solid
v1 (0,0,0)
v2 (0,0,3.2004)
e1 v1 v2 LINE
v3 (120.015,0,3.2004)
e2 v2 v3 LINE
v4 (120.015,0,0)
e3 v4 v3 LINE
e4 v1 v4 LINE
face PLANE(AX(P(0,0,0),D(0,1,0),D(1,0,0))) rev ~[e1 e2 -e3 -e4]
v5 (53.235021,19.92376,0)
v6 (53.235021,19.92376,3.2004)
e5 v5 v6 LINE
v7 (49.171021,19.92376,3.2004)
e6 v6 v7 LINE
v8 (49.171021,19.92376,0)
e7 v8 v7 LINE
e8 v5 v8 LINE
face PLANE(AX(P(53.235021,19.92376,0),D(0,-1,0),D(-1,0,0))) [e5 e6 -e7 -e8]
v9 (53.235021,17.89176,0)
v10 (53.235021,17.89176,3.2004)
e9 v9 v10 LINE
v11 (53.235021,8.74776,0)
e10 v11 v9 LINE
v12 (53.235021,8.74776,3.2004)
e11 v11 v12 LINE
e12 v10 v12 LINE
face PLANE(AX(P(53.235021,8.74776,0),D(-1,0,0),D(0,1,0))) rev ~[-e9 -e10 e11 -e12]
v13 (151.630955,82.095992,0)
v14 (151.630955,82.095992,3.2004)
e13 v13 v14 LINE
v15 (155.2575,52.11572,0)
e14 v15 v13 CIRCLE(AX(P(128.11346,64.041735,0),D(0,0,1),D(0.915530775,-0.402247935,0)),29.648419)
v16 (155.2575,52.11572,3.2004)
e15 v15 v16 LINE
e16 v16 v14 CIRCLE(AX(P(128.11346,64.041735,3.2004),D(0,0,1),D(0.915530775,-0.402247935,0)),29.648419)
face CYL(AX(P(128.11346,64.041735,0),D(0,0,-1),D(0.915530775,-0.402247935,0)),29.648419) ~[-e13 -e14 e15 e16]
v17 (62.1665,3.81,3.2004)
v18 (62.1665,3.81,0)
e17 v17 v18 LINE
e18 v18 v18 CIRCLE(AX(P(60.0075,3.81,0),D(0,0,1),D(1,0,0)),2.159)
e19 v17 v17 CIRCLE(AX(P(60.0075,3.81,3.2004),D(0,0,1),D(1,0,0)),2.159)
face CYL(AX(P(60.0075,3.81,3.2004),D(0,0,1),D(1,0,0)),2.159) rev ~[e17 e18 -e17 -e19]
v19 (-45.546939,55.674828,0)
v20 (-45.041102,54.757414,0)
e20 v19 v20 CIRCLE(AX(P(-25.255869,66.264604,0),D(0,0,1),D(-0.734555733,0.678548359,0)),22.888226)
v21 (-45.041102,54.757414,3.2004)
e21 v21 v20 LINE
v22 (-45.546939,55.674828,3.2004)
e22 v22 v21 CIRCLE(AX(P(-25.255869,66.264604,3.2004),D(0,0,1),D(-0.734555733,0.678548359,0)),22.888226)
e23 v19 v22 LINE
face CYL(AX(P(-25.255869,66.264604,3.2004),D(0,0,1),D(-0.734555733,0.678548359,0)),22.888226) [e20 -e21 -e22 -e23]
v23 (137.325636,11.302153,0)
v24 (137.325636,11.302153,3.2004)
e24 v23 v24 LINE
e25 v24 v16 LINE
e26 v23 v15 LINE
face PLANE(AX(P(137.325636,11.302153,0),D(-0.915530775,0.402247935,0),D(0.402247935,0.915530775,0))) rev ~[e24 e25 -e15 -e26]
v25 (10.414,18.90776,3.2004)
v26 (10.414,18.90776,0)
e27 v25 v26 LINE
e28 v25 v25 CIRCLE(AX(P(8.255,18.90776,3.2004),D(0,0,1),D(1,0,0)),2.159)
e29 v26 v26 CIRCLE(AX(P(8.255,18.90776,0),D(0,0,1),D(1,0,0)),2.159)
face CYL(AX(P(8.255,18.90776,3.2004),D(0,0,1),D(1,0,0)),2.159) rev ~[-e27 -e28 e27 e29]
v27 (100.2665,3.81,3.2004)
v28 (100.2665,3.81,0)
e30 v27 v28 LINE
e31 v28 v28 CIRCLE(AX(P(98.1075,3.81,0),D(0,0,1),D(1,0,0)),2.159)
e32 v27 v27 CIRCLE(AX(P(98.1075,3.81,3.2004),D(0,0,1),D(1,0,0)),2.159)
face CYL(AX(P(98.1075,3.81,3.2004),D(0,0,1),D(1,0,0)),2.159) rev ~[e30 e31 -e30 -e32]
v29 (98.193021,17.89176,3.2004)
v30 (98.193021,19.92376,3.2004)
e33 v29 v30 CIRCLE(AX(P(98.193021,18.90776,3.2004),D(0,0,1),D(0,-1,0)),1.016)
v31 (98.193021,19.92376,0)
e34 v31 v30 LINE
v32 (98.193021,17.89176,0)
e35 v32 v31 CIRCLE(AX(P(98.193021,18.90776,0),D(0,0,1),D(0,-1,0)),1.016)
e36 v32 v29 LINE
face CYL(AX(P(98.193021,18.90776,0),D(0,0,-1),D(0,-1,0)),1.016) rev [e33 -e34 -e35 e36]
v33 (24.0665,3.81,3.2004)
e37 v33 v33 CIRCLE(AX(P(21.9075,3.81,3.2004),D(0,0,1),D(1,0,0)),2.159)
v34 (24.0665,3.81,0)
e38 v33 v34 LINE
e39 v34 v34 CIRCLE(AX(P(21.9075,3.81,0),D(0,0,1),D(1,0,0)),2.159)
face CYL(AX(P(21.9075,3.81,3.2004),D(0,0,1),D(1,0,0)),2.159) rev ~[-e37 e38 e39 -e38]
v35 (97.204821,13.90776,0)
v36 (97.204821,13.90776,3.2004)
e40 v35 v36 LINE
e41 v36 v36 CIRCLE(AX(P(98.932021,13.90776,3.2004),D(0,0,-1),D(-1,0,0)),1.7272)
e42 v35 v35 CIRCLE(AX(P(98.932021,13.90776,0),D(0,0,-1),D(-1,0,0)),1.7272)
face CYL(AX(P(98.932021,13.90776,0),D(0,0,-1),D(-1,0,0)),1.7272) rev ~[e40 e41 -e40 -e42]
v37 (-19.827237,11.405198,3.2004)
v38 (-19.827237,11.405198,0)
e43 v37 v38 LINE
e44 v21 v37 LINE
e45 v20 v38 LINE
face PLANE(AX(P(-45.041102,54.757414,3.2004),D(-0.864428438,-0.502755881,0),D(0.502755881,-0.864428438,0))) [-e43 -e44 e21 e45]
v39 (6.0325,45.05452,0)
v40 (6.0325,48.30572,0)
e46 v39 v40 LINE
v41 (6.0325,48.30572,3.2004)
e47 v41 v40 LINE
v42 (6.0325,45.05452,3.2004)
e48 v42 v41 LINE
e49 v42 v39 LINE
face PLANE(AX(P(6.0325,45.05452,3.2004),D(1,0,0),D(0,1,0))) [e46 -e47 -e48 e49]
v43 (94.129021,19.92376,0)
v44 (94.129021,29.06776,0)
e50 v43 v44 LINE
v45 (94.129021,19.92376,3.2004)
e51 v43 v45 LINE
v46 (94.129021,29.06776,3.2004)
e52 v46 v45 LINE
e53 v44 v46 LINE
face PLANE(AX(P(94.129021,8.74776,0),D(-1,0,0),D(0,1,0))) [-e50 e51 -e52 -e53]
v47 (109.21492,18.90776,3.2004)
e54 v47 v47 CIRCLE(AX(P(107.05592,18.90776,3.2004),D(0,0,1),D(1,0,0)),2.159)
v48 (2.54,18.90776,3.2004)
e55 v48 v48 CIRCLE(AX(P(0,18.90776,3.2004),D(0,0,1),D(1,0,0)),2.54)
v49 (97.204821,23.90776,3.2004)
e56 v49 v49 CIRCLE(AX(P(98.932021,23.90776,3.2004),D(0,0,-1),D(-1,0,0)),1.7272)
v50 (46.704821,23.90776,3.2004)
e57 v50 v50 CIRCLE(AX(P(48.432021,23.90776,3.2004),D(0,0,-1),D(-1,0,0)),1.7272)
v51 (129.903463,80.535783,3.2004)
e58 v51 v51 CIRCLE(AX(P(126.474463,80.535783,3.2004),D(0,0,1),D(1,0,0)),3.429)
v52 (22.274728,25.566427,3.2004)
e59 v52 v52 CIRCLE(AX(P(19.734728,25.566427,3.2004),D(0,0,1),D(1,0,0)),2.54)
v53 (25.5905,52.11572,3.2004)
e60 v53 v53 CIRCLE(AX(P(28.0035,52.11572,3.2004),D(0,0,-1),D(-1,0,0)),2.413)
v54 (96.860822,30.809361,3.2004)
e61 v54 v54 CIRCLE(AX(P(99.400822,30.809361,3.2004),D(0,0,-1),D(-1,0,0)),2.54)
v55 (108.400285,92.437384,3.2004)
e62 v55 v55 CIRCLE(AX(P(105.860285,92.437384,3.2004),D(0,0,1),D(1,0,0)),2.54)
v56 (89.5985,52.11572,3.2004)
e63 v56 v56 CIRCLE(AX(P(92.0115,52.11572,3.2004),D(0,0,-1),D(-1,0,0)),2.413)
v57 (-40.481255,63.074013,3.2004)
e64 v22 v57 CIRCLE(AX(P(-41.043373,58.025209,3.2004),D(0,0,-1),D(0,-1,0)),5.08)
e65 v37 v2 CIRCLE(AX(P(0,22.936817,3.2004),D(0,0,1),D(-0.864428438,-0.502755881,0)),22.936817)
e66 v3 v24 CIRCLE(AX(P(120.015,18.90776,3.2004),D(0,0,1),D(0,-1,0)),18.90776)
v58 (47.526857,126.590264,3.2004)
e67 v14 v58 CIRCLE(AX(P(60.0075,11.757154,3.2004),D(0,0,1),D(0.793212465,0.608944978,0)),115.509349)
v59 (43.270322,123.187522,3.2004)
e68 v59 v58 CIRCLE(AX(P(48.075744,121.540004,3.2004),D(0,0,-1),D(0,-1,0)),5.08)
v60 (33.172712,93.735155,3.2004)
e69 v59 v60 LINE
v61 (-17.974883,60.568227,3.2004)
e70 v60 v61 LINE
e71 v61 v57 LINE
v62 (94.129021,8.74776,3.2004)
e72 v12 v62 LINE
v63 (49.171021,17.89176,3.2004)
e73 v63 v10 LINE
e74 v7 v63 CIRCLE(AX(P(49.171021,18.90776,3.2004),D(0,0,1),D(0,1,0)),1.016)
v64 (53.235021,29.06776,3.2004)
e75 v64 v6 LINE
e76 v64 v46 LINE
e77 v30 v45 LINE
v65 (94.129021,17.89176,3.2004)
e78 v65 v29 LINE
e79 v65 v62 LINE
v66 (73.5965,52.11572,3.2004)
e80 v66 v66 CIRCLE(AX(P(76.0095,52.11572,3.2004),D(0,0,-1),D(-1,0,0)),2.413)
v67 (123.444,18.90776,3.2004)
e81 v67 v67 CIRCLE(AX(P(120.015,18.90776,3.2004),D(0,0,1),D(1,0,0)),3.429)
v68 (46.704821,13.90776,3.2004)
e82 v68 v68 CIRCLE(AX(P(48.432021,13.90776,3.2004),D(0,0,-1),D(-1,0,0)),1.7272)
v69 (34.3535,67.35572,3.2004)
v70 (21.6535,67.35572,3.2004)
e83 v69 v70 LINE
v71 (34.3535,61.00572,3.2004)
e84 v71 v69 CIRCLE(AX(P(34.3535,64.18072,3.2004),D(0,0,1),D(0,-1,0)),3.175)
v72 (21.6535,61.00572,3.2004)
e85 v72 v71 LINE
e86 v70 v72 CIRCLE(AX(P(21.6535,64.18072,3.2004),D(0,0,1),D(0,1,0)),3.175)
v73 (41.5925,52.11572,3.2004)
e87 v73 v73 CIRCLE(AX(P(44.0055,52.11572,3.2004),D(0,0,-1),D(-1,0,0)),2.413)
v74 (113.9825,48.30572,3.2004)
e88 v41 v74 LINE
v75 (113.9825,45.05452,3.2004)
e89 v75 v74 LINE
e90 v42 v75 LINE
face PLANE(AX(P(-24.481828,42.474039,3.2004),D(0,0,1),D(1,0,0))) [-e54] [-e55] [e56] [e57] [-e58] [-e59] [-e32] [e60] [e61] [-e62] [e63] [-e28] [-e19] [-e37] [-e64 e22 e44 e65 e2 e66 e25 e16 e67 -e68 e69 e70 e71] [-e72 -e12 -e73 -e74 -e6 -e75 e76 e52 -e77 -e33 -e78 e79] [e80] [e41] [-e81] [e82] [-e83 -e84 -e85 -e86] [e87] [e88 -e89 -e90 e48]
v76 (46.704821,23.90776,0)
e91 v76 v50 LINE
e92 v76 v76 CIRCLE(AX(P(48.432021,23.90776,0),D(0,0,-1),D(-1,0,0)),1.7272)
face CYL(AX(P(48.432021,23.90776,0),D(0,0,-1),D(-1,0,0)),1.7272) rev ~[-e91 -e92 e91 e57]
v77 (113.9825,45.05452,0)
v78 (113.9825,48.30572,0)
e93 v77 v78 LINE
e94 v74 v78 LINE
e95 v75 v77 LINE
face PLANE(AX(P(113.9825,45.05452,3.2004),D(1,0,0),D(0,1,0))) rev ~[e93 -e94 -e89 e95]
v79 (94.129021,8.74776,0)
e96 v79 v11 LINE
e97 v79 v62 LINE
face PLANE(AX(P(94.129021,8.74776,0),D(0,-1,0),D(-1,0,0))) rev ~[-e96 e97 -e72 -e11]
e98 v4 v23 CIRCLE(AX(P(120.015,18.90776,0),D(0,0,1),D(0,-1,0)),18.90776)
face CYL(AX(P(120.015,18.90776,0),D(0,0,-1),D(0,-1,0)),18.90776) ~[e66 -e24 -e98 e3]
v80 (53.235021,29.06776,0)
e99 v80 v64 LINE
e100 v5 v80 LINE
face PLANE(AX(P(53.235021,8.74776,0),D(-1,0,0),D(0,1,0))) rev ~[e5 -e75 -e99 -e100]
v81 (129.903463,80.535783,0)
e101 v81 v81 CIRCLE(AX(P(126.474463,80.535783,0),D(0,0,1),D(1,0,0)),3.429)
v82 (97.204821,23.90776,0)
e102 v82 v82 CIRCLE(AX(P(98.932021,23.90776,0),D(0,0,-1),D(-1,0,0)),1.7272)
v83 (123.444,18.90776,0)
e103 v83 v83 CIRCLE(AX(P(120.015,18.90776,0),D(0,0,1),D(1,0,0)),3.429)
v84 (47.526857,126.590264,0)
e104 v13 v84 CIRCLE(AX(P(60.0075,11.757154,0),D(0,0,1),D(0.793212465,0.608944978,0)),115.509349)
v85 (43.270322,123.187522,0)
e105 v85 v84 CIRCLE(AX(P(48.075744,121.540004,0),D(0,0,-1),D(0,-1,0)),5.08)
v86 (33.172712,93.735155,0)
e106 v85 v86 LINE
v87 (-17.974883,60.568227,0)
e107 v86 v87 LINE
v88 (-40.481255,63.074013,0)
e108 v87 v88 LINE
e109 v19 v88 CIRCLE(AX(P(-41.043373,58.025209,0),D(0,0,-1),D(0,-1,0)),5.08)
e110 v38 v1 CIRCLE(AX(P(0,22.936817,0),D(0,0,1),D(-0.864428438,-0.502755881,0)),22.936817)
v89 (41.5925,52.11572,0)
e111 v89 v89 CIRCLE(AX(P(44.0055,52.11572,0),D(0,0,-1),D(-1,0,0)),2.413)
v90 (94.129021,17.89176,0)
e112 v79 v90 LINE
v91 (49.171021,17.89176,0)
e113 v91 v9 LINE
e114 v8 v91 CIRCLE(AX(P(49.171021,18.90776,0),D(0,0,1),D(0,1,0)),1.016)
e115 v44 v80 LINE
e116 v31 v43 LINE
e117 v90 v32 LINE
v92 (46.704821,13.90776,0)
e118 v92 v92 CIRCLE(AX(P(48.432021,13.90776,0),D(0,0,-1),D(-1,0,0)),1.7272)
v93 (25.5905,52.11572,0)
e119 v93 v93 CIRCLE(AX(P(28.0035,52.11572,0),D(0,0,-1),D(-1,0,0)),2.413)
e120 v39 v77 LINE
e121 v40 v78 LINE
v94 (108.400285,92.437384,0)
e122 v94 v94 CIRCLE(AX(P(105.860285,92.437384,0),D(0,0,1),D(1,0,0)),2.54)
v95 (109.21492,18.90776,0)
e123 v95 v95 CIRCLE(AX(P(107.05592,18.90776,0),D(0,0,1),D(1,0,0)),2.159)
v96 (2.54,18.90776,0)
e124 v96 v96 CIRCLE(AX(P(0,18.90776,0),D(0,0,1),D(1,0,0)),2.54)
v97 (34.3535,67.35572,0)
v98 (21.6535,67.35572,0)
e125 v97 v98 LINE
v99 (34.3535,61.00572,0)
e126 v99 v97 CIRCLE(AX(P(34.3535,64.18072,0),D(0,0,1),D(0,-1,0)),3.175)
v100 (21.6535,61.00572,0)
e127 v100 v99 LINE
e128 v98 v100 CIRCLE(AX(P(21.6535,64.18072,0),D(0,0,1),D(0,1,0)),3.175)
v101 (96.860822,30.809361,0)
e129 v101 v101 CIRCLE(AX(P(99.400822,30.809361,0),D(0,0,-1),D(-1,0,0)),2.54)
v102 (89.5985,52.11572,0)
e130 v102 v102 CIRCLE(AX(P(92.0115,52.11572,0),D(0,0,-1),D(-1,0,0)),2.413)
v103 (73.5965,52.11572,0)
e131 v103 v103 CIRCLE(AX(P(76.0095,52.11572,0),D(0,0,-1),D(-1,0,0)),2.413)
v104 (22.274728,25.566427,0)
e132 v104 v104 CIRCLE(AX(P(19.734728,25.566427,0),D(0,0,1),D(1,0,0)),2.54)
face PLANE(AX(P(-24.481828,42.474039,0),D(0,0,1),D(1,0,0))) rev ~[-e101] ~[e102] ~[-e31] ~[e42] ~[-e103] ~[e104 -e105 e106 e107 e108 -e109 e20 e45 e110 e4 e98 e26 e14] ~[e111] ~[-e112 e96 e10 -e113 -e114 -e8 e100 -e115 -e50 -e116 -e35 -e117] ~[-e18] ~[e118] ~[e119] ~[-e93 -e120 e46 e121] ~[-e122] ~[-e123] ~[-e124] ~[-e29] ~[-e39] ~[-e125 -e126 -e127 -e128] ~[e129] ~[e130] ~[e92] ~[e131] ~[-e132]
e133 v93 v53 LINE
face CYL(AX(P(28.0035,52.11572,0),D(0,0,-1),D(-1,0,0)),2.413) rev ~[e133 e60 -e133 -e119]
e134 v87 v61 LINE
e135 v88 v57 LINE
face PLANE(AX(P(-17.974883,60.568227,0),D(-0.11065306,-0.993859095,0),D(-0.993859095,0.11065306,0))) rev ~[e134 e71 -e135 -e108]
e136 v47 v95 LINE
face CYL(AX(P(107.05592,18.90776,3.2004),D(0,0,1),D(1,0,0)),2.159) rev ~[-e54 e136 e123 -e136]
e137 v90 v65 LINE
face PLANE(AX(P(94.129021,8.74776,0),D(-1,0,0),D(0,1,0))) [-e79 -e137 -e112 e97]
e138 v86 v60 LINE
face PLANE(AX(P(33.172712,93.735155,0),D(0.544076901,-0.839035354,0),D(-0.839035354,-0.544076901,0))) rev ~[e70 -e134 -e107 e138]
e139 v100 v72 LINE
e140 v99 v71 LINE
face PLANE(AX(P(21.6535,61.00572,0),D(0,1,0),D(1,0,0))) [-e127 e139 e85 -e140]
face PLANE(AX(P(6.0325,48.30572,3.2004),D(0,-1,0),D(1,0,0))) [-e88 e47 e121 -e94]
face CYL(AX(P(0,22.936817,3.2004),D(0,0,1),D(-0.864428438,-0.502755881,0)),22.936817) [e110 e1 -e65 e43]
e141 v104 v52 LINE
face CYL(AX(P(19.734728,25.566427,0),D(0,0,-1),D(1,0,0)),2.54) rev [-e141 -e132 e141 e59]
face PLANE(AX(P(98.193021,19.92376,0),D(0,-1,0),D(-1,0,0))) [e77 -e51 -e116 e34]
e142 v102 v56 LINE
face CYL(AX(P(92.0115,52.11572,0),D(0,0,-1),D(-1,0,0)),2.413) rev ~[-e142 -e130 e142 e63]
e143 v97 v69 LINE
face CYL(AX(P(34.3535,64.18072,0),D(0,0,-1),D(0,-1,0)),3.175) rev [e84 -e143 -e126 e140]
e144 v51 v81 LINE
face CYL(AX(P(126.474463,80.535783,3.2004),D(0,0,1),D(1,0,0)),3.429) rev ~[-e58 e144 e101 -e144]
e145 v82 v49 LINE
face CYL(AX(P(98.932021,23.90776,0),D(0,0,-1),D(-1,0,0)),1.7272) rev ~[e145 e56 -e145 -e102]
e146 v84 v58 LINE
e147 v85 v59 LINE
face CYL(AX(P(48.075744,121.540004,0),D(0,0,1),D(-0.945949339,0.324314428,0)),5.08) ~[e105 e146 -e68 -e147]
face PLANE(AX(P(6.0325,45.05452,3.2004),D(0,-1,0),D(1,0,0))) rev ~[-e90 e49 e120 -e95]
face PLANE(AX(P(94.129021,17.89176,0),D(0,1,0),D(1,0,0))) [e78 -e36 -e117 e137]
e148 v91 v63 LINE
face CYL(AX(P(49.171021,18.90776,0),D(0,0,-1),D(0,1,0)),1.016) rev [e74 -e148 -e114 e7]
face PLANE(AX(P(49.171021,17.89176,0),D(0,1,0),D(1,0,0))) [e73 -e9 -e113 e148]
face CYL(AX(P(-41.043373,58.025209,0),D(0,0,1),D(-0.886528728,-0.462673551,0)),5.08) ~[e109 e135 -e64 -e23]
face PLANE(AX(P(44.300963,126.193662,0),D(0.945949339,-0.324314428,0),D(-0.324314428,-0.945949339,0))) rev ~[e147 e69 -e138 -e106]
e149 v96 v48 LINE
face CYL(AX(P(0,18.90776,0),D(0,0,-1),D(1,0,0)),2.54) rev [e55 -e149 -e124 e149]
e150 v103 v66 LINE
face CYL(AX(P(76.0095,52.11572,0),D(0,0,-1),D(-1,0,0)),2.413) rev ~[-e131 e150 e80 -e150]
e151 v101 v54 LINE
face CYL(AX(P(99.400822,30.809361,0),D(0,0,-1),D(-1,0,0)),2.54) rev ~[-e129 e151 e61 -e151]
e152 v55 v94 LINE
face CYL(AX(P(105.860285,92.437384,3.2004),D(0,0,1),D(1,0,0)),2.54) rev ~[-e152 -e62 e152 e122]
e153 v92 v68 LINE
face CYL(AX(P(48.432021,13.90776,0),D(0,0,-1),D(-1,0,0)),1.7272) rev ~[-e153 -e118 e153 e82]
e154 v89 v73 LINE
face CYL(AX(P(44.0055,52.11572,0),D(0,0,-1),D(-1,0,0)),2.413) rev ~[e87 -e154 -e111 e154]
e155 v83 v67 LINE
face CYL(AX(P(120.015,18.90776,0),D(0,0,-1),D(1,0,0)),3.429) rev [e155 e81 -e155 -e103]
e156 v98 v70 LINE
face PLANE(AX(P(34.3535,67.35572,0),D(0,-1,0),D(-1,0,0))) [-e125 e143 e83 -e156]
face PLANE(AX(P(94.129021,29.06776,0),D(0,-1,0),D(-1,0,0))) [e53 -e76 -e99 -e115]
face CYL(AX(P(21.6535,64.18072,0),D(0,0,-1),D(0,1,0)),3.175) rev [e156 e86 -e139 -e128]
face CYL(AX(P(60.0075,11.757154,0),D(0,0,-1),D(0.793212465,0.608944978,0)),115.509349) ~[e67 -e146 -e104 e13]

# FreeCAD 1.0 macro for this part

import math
import FreeCAD as App
import Part
import Sketcher
from FreeCAD import Vector
Q = App.Units.Quantity


def edges_at(feature, points):
    """Names of the edges that pass closest to the given points."""
    edges = feature.Shape.Edges
    near = lambda p: min(range(len(edges)), key=lambda i: edges[i].distToShape(Part.Vertex(*p))[0])
    return sorted({f"Edge{near(p) + 1}" for p in points})


def add_polygon(sketch, points):
    """Adds a closed chain of lines whose ends are joined by coincident constraints."""
    first, n = sketch.GeometryCount, len(points)
    for a, b in zip(points, points[1:] + points[:1]):
        sketch.addGeometry(Part.LineSegment(App.Vector(*a, 0), App.Vector(*b, 0)), False)
    for i in range(n):
        sketch.addConstraint(Sketcher.Constraint("Coincident", first + i, 2, first + (i + 1) % n, 1))

doc = App.newDocument("Part")
body = doc.addObject("PartDesign::Body", "Body")

# Sketch on XY plane
sketch1 = doc.addObject("Sketcher::SketchObject", "Sketch")
body.addObject(sketch1)
sketch1.AttachmentSupport = (doc.XY_Plane, [""])
sketch1.MapMode = "FlatFace"
sketch1.addGeometry(Part.LineSegment(Vector(0, 0, 0), Vector(120, 0, 0)), False)
sketch1.addGeometry(Part.ArcOfCircle(Part.Circle(Vector(120, 18.9, 0), Vector(0, 0, 1), 18.9), math.radians(-90), math.radians(-24)), False)
sketch1.addGeometry(Part.LineSegment(Vector(137.3, 11.3, 0), Vector(155.3, 52.1, 0)), False)
sketch1.addGeometry(Part.ArcOfCircle(Part.Circle(Vector(128.1, 64, 0), Vector(0, 0, 1), 29.6), math.radians(-24), math.radians(38)), False)
sketch1.addGeometry(Part.ArcOfCircle(Part.Circle(Vector(60, 11.8, 0), Vector(0, 0, 1), 115.5), math.radians(38), math.radians(142)), False)
sketch1.addGeometry(Part.ArcOfCircle(Part.Circle(Vector(-8.1, 64, 0), Vector(0, 0, 1), 29.6), math.radians(142), math.radians(204)), False)
sketch1.addGeometry(Part.LineSegment(Vector(-35.2, 52.1, 0), Vector(-17.3, 11.3, 0)), False)
sketch1.addGeometry(Part.ArcOfCircle(Part.Circle(Vector(0, 18.9, 0), Vector(0, 0, 1), 18.9), math.radians(-156), math.radians(-90)), False)
sketch1.addGeometry(Part.Circle(Vector(0, 18.9, 0), Vector(0, 0, 1), 2.5), False)
sketch1.addGeometry(Part.Circle(Vector(120, 18.9, 0), Vector(0, 0, 1), 3.4), False)
sketch1.addGeometry(Part.Circle(Vector(19.7, 25.6, 0), Vector(0, 0, 1), 2.5), False)
sketch1.addConstraint(Sketcher.Constraint("Tangent", 0, 2, 1, 1))
sketch1.addConstraint(Sketcher.Constraint("Tangent", 1, 2, 2, 1))
sketch1.addConstraint(Sketcher.Constraint("Tangent", 2, 2, 3, 1))
sketch1.addConstraint(Sketcher.Constraint("Tangent", 3, 2, 4, 1))
sketch1.addConstraint(Sketcher.Constraint("Tangent", 4, 2, 5, 1))
sketch1.addConstraint(Sketcher.Constraint("Tangent", 5, 2, 6, 1))
sketch1.addConstraint(Sketcher.Constraint("Tangent", 6, 2, 7, 1))
sketch1.addConstraint(Sketcher.Constraint("Tangent", 7, 2, 0, 1))
sketch1.addConstraint(Sketcher.Constraint("Horizontal", 0))
sketch1.addConstraint(Sketcher.Constraint("Coincident", 7, 2, -1, 1))
sketch1.addConstraint(Sketcher.Constraint("Coincident", 8, 3, 7, 3))
sketch1.addConstraint(Sketcher.Constraint("Coincident", 9, 3, 1, 3))
sketch1.addConstraint(Sketcher.Constraint("Equal", 3, 5))
sketch1.addConstraint(Sketcher.Constraint("Equal", 1, 7))
sketch1.addConstraint(Sketcher.Constraint("Equal", 8, 10))
sketch1.addConstraint(Sketcher.Constraint("Horizontal", 3, 3, 5, 3))
sketch1.addConstraint(Sketcher.Constraint("Horizontal", 2, 2, 5, 2))
sketch1.addConstraint(Sketcher.Constraint("Diameter", 8, Q("0.2 in")))
sketch1.addConstraint(Sketcher.Constraint("Diameter", 9, Q("0.27 in")))
sketch1.addConstraint(Sketcher.Constraint("Radius", 1, Q("0.7444 in")))
sketch1.addConstraint(Sketcher.Constraint("DistanceX", 0, 1, 0, 2, Q("4.725 in")))
sketch1.addConstraint(Sketcher.Constraint("Radius", 3, Q("29.648419 mm")))
sketch1.addConstraint(Sketcher.Constraint("Radius", 4, Q("115.509349 mm")))
sketch1.addConstraint(Sketcher.Constraint("DistanceX", -1, 1, 2, 2, Q("6.1125 in")))
sketch1.addConstraint(Sketcher.Constraint("DistanceY", -1, 1, 2, 2, Q("2.0518 in")))
sketch1.addConstraint(Sketcher.Constraint("DistanceY", 10, 3, 5, 3, Q("38.475308 mm")))
sketch1.addConstraint(Sketcher.Constraint("DistanceX", -1, 1, 10, 3, Q("19.734728 mm")))
pad1 = doc.addObject("PartDesign::Pad", "Pad")
body.addObject(pad1)
pad1.Profile = sketch1
pad1.Length = Q("0.126 in")

# Sketch on XY plane
sketch2 = doc.addObject("Sketcher::SketchObject", "Sketch001")
body.addObject(sketch2)
sketch2.AttachmentSupport = (doc.XY_Plane, [""])
sketch2.MapMode = "FlatFace"
sketch2.addGeometry(Part.Circle(Vector(92, 52.1, 0), Vector(0, 0, 1), 2.4), False)
sketch2.addGeometry(Part.Circle(Vector(76, 52.1, 0), Vector(0, 0, 1), 2.4), False)
sketch2.addGeometry(Part.Circle(Vector(44, 52.1, 0), Vector(0, 0, 1), 2.4), False)
sketch2.addGeometry(Part.Circle(Vector(28, 52.1, 0), Vector(0, 0, 1), 2.4), False)
sketch2.addConstraint(Sketcher.Constraint("Equal", 0, 1))
sketch2.addConstraint(Sketcher.Constraint("Equal", 1, 2))
sketch2.addConstraint(Sketcher.Constraint("Equal", 2, 3))
sketch2.addConstraint(Sketcher.Constraint("Horizontal", 0, 3, 1, 3))
sketch2.addConstraint(Sketcher.Constraint("Horizontal", 1, 3, 2, 3))
sketch2.addConstraint(Sketcher.Constraint("Horizontal", 2, 3, 3, 3))
sketch2.addConstraint(Sketcher.Constraint("Diameter", 0, Q("0.19 in")))
sketch2.addConstraint(Sketcher.Constraint("DistanceX", 1, 3, 0, 3, Q("0.63 in")))
sketch2.addConstraint(Sketcher.Constraint("DistanceX", 2, 3, 1, 3, Q("1.26 in")))
sketch2.addConstraint(Sketcher.Constraint("DistanceX", 3, 3, 2, 3, Q("0.63 in")))
sketch2.addConstraint(Sketcher.Constraint("DistanceX", -1, 1, 0, 3, Q("3.6225 in")))
sketch2.addConstraint(Sketcher.Constraint("DistanceY", -1, 1, 0, 3, Q("2.0518 in")))
pocket1 = doc.addObject("PartDesign::Pocket", "Pocket")
body.addObject(pocket1)
pocket1.Profile = sketch2
pocket1.Length = Q("0.126 in")
pocket1.Reversed = True

# Sketch on XY plane
sketch3 = doc.addObject("Sketcher::SketchObject", "Sketch002")
body.addObject(sketch3)
sketch3.AttachmentSupport = (doc.XY_Plane, [""])
sketch3.MapMode = "FlatFace"
sketch3.addGeometry(Part.Circle(Vector(98.9, 23.9, 0), Vector(0, 0, 1), 1.7), False)  # 0
sketch3.addGeometry(Part.Circle(Vector(48.4, 13.9, 0), Vector(0, 0, 1), 1.7), False)  # 1
sketch3.addGeometry(Part.Circle(Vector(48.4, 23.9, 0), Vector(0, 0, 1), 1.7), False)  # 2
sketch3.addGeometry(Part.Circle(Vector(98.9, 13.9, 0), Vector(0, 0, 1), 1.7), False)  # 3
add_polygon(sketch3, [(94.1, 29.1), (94.1, 8.7), (53.2, 8.7), (53.2, 29.1)])  # lines 4-7
sketch3.addConstraint(Sketcher.Constraint("Vertical", 4))
sketch3.addConstraint(Sketcher.Constraint("Horizontal", 5))
sketch3.addConstraint(Sketcher.Constraint("Vertical", 6))
sketch3.addConstraint(Sketcher.Constraint("Horizontal", 7))
sketch3.addConstraint(Sketcher.Constraint("Equal", 0, 1))
sketch3.addConstraint(Sketcher.Constraint("Equal", 1, 2))
sketch3.addConstraint(Sketcher.Constraint("Equal", 2, 3))
sketch3.addConstraint(Sketcher.Constraint("Horizontal", 0, 3, 2, 3))
sketch3.addConstraint(Sketcher.Constraint("Horizontal", 1, 3, 3, 3))
sketch3.addConstraint(Sketcher.Constraint("Vertical", 1, 3, 2, 3))
sketch3.addConstraint(Sketcher.Constraint("Vertical", 0, 3, 3, 3))
sketch3.addConstraint(Sketcher.Constraint("Diameter", 0, Q("0.136 in")))
sketch3.addConstraint(Sketcher.Constraint("DistanceY", 4, 2, 4, 1, Q("0.8 in")))
sketch3.addConstraint(Sketcher.Constraint("DistanceX", 5, 2, 5, 1, Q("1.61 in")))
sketch3.addConstraint(Sketcher.Constraint("DistanceY", -1, 1, 4, 2, Q("0.3444 in")))
sketch3.addConstraint(Sketcher.Constraint("DistanceX", 1, 3, 0, 3, Q("50.5 mm")))
sketch3.addConstraint(Sketcher.Constraint("DistanceY", 1, 3, 0, 3, Q("10 mm")))
sketch3.addConstraint(Sketcher.Constraint("DistanceX", 4, 2, 3, 3, Q("4.803 mm")))
sketch3.addConstraint(Sketcher.Constraint("DistanceY", 4, 2, 3, 3, Q("5.16 mm")))
sketch3.addConstraint(Sketcher.Constraint("DistanceX", -1, 1, 0, 3, Q("98.932021 mm")))
pocket2 = doc.addObject("PartDesign::Pocket", "Pocket001")
body.addObject(pocket2)
pocket2.Profile = sketch3
pocket2.Type = "ThroughAll"
pocket2.Reversed = True

# Sketch on XY plane
sketch4 = doc.addObject("Sketcher::SketchObject", "Sketch003")
body.addObject(sketch4)
sketch4.AttachmentSupport = (doc.XY_Plane, [""])
sketch4.MapMode = "FlatFace"
sketch4.addGeometry(Part.LineSegment(Vector(94.1, 19.9, 0), Vector(98.2, 19.9, 0)), False)
sketch4.addGeometry(Part.ArcOfCircle(Part.Circle(Vector(98.2, 18.9, 0), Vector(0, 0, 1), 1), math.radians(-90), math.radians(90)), False)
sketch4.addGeometry(Part.LineSegment(Vector(98.2, 17.9, 0), Vector(94.1, 17.9, 0)), False)
sketch4.addGeometry(Part.LineSegment(Vector(94.1, 17.9, 0), Vector(94.1, 19.9, 0)), False)
sketch4.addGeometry(Part.LineSegment(Vector(49.2, 19.9, 0), Vector(53.2, 19.9, 0)), False)
sketch4.addGeometry(Part.LineSegment(Vector(53.2, 19.9, 0), Vector(53.2, 17.9, 0)), False)
sketch4.addGeometry(Part.LineSegment(Vector(53.2, 17.9, 0), Vector(49.2, 17.9, 0)), False)
sketch4.addGeometry(Part.ArcOfCircle(Part.Circle(Vector(49.2, 18.9, 0), Vector(0, 0, 1), 1), math.radians(90), math.radians(270)), False)
sketch4.addConstraint(Sketcher.Constraint("Tangent", 0, 2, 1, 2))
sketch4.addConstraint(Sketcher.Constraint("Tangent", 1, 1, 2, 1))
sketch4.addConstraint(Sketcher.Constraint("Coincident", 2, 2, 3, 1))
sketch4.addConstraint(Sketcher.Constraint("Coincident", 3, 2, 0, 1))
sketch4.addConstraint(Sketcher.Constraint("Coincident", 4, 2, 5, 1))
sketch4.addConstraint(Sketcher.Constraint("Coincident", 5, 2, 6, 1))
sketch4.addConstraint(Sketcher.Constraint("Tangent", 6, 2, 7, 2))
sketch4.addConstraint(Sketcher.Constraint("Tangent", 7, 1, 4, 1))
sketch4.addConstraint(Sketcher.Constraint("Horizontal", 0))
sketch4.addConstraint(Sketcher.Constraint("Horizontal", 2))
sketch4.addConstraint(Sketcher.Constraint("Vertical", 3))
sketch4.addConstraint(Sketcher.Constraint("Horizontal", 4))
sketch4.addConstraint(Sketcher.Constraint("Vertical", 5))
sketch4.addConstraint(Sketcher.Constraint("Horizontal", 6))
sketch4.addConstraint(Sketcher.Constraint("Equal", 1, 7))
sketch4.addConstraint(Sketcher.Constraint("Horizontal", 1, 3, 7, 3))
sketch4.addConstraint(Sketcher.Constraint("Equal", 2, 4))
sketch4.addConstraint(Sketcher.Constraint("Radius", 1, Q("0.04 in")))
sketch4.addConstraint(Sketcher.Constraint("DistanceX", 0, 1, 0, 2, Q("0.16 in")))
sketch4.addConstraint(Sketcher.Constraint("DistanceX", 7, 3, 1, 3, Q("1.93 in")))
sketch4.addConstraint(Sketcher.Constraint("DistanceY", -1, 1, 1, 3, Q("0.7444 in")))
sketch4.addConstraint(Sketcher.Constraint("DistanceX", -1, 1, 1, 3, Q("98.193021 mm")))
pocket3 = doc.addObject("PartDesign::Pocket", "Pocket002")
body.addObject(pocket3)
pocket3.Profile = sketch4
pocket3.Length = Q("0.126 in")
pocket3.Reversed = True

# Sketch on XY plane
sketch5 = doc.addObject("Sketcher::SketchObject", "Sketch004")
body.addObject(sketch5)
sketch5.AttachmentSupport = (doc.XY_Plane, [""])
sketch5.MapMode = "FlatFace"
sketch5.addGeometry(Part.Circle(Vector(99.4, 30.8, 0), Vector(0, 0, 1), 2.5), False)
sketch5.addConstraint(Sketcher.Constraint("Diameter", 0, Q("0.2 in")))
sketch5.addConstraint(Sketcher.Constraint("DistanceY", -1, 1, 0, 3, Q("30.809361 mm")))
sketch5.addConstraint(Sketcher.Constraint("DistanceX", -1, 1, 0, 3, Q("99.400822 mm")))
pocket4 = doc.addObject("PartDesign::Pocket", "Pocket003")
body.addObject(pocket4)
pocket4.Profile = sketch5
pocket4.Type = "ThroughAll"
pocket4.Reversed = True

# Sketch on XY plane
sketch6 = doc.addObject("Sketcher::SketchObject", "Sketch005")
body.addObject(sketch6)
sketch6.AttachmentSupport = (doc.XY_Plane, [""])
sketch6.MapMode = "FlatFace"
sketch6.AttachmentOffset = App.Placement(Vector(0, 0, 0.126 * 25.4), App.Rotation())
sketch6.addGeometry(Part.Circle(Vector(21.9, 3.8, 0), Vector(0, 0, 1), 2.2), False)
sketch6.addGeometry(Part.Circle(Vector(60, 3.8, 0), Vector(0, 0, 1), 2.2), False)
sketch6.addGeometry(Part.Circle(Vector(98.1, 3.8, 0), Vector(0, 0, 1), 2.2), False)
sketch6.addConstraint(Sketcher.Constraint("Equal", 0, 1))
sketch6.addConstraint(Sketcher.Constraint("Equal", 1, 2))
sketch6.addConstraint(Sketcher.Constraint("Horizontal", 0, 3, 1, 3))
sketch6.addConstraint(Sketcher.Constraint("Horizontal", 1, 3, 2, 3))
sketch6.addConstraint(Sketcher.Constraint("Diameter", 0, Q("0.17 in")))
sketch6.addConstraint(Sketcher.Constraint("DistanceX", 0, 3, 2, 3, Q("3 in")))
sketch6.addConstraint(Sketcher.Constraint("DistanceX", 0, 3, 1, 3, Q("1.5 in")))
sketch6.addConstraint(Sketcher.Constraint("DistanceY", -1, 1, 0, 3, Q("0.15 in")))
sketch6.addConstraint(Sketcher.Constraint("DistanceX", -1, 1, 0, 3, Q("0.8625 in")))
pocket5 = doc.addObject("PartDesign::Pocket", "Pocket004")
body.addObject(pocket5)
pocket5.Profile = sketch6
pocket5.Length = Q("0.126 in")

# Sketch on XY plane
sketch7 = doc.addObject("Sketcher::SketchObject", "Sketch006")
body.addObject(sketch7)
sketch7.AttachmentSupport = (doc.XY_Plane, [""])
sketch7.MapMode = "FlatFace"
sketch7.AttachmentOffset = App.Placement(Vector(0, 0, 0.126 * 25.4), App.Rotation())
add_polygon(sketch7, [(6, 48.3), (6, 45.1), (114, 45.1), (114, 48.3)])  # lines 0-3
sketch7.addConstraint(Sketcher.Constraint("Vertical", 0))
sketch7.addConstraint(Sketcher.Constraint("Horizontal", 1))
sketch7.addConstraint(Sketcher.Constraint("Vertical", 2))
sketch7.addConstraint(Sketcher.Constraint("Horizontal", 3))
sketch7.addConstraint(Sketcher.Constraint("DistanceX", 1, 1, 1, 2, Q("4.25 in")))
sketch7.addConstraint(Sketcher.Constraint("DistanceY", 0, 2, 0, 1, Q("0.128 in")))
sketch7.addConstraint(Sketcher.Constraint("DistanceX", -1, 1, 0, 2, Q("0.2375 in")))
sketch7.addConstraint(Sketcher.Constraint("DistanceY", -1, 1, 0, 2, Q("1.7738 in")))
pocket6 = doc.addObject("PartDesign::Pocket", "Pocket005")
body.addObject(pocket6)
pocket6.Profile = sketch7
pocket6.Length = Q("0.126 in")

# Sketch on XY plane
sketch8 = doc.addObject("Sketcher::SketchObject", "Sketch007")
body.addObject(sketch8)
sketch8.AttachmentSupport = (doc.XY_Plane, [""])
sketch8.MapMode = "FlatFace"
sketch8.AttachmentOffset = App.Placement(Vector(0, 0, 0.126 * 25.4), App.Rotation())
sketch8.addGeometry(Part.Circle(Vector(126.5, 80.5, 0), Vector(0, 0, 1), 3.4), False)
sketch8.addGeometry(Part.Circle(Vector(105.9, 92.4, 0), Vector(0, 0, 1), 2.5), False)
sketch8.addConstraint(Sketcher.Constraint("Diameter", 1, Q("0.2 in")))
sketch8.addConstraint(Sketcher.Constraint("Diameter", 0, Q("0.27 in")))
sketch8.addConstraint(Sketcher.Constraint("DistanceY", -1, 1, 0, 3, Q("3.1707001 in")))
sketch8.addConstraint(Sketcher.Constraint("DistanceY", 0, 3, 1, 3, Q("11.901601 mm")))
sketch8.addConstraint(Sketcher.Constraint("DistanceX", -1, 1, 0, 3, Q("126.474463 mm")))
sketch8.addConstraint(Sketcher.Constraint("DistanceX", -1, 1, 1, 3, Q("105.860285 mm")))
pocket7 = doc.addObject("PartDesign::Pocket", "Pocket006")
body.addObject(pocket7)
pocket7.Profile = sketch8
pocket7.Length = Q("0.126 in")

# Sketch on XY plane
sketch9 = doc.addObject("Sketcher::SketchObject", "Sketch008")
body.addObject(sketch9)
sketch9.AttachmentSupport = (doc.XY_Plane, [""])
sketch9.MapMode = "FlatFace"
sketch9.addGeometry(Part.LineSegment(Vector(44, 126, 0), Vector(33, 94, 0)), False)
sketch9.addGeometry(Part.LineSegment(Vector(33, 94, 0), Vector(-18, 61, 0)), False)
sketch9.addGeometry(Part.LineSegment(Vector(-18, 61, 0), Vector(-32, 82, 0)), False)
sketch9.addGeometry(Part.ArcOfCircle(Part.Circle(Vector(60, 12, 0), Vector(0, 0, 1), 116), math.radians(98), math.radians(143)), False)
sketch9.addConstraint(Sketcher.Constraint("Coincident", 0, 2, 1, 1))
sketch9.addConstraint(Sketcher.Constraint("Coincident", 1, 2, 2, 1))
sketch9.addConstraint(Sketcher.Constraint("Coincident", 2, 2, 3, 2))
sketch9.addConstraint(Sketcher.Constraint("Coincident", 3, 1, 0, 1))
sketch9.addConstraint(Sketcher.Constraint("Perpendicular", 1, 2))
sketch9.addConstraint(Sketcher.Constraint("Distance", 1, Q("2.4 in")))
sketch9.addConstraint(Sketcher.Constraint("Radius", 3, Q("115.509349 mm")))
sketch9.addConstraint(Sketcher.Constraint("DistanceX", -1, 1, 3, 3, Q("2.3625 in")))
sketch9.addConstraint(Sketcher.Constraint("DistanceY", 3, 3, 0, 2, Q("81.978001 mm")))
sketch9.addConstraint(Sketcher.Constraint("Distance", 2, Q("25.389148 mm")))
sketch9.addConstraint(Sketcher.Constraint("DistanceX", -1, 1, 0, 2, Q("33.172712 mm")))
sketch9.addConstraint(Sketcher.Constraint("DistanceY", -1, 1, 2, 2, Q("81.87062 mm")))
sketch9.addConstraint(Sketcher.Constraint("DistanceY", -1, 1, 3, 1, Q("126.193662 mm")))
pocket8 = doc.addObject("PartDesign::Pocket", "Pocket007")
body.addObject(pocket8)
pocket8.Profile = sketch9
pocket8.Length = Q("0.126 in")
pocket8.Reversed = True

# Sketch on XY plane
sketch10 = doc.addObject("Sketcher::SketchObject", "Sketch009")
body.addObject(sketch10)
sketch10.AttachmentSupport = (doc.XY_Plane, [""])
sketch10.MapMode = "FlatFace"
sketch10.AttachmentOffset = App.Placement(Vector(0, 0, 0.126 * 25.4), App.Rotation())
sketch10.addGeometry(Part.Circle(Vector(8.3, 18.9, 0), Vector(0, 0, 1), 2.2), False)
sketch10.addGeometry(Part.Circle(Vector(107.1, 18.9, 0), Vector(0, 0, 1), 2.2), False)
sketch10.addConstraint(Sketcher.Constraint("Equal", 0, 1))
sketch10.addConstraint(Sketcher.Constraint("Horizontal", 0, 3, 1, 3))
sketch10.addConstraint(Sketcher.Constraint("Diameter", 0, Q("0.17 in")))
sketch10.addConstraint(Sketcher.Constraint("DistanceX", -1, 1, 0, 3, Q("0.325 in")))
sketch10.addConstraint(Sketcher.Constraint("DistanceY", -1, 1, 0, 3, Q("0.7444 in")))
sketch10.addConstraint(Sketcher.Constraint("DistanceX", -1, 1, 1, 3, Q("4.2148 in")))
pocket9 = doc.addObject("PartDesign::Pocket", "Pocket008")
body.addObject(pocket9)
pocket9.Profile = sketch10
pocket9.Length = Q("0.126 in")

# Sketch on XY plane
sketch11 = doc.addObject("Sketcher::SketchObject", "Sketch010")
body.addObject(sketch11)
sketch11.AttachmentSupport = (doc.XY_Plane, [""])
sketch11.MapMode = "FlatFace"
sketch11.AttachmentOffset = App.Placement(Vector(0, 0, 0.126 * 25.4), App.Rotation())
sketch11.addGeometry(Part.LineSegment(Vector(-45, 55, 0), Vector(-20, 11, 0)), False)
sketch11.addGeometry(Part.ArcOfCircle(Part.Circle(Vector(0, 23, 0), Vector(0, 0, 1), 23), math.radians(-150), math.radians(-90)), False)
sketch11.addGeometry(Part.ArcOfCircle(Part.Circle(Vector(228, 101, 0), Vector(0, 0, 1), 249), math.radians(-170.76), math.radians(-156.18)), False)
sketch11.addGeometry(Part.LineSegment(Vector(-18, 61, 0), Vector(-36, 88, 0)), False)
sketch11.addGeometry(Part.ArcOfCircle(Part.Circle(Vector(59, -11, 0), Vector(0, 0, 1), 137), math.radians(133.56), math.radians(137.27)), False)
sketch11.addGeometry(Part.ArcOfCircle(Part.Circle(Vector(-25, 66, 0), Vector(0, 0, 1), 23), math.radians(137), math.radians(210)), False)
sketch11.addConstraint(Sketcher.Constraint("Tangent", 0, 2, 1, 1))
sketch11.addConstraint(Sketcher.Constraint("Coincident", 1, 2, 2, 2))
sketch11.addConstraint(Sketcher.Constraint("Coincident", 2, 1, 3, 1))
sketch11.addConstraint(Sketcher.Constraint("Coincident", 3, 2, 4, 1))
sketch11.addConstraint(Sketcher.Constraint("Tangent", 4, 2, 5, 1))
sketch11.addConstraint(Sketcher.Constraint("Tangent", 5, 2, 0, 1))
sketch11.addConstraint(Sketcher.Constraint("Coincident", 1, 2, -1, 1))
sketch11.addConstraint(Sketcher.Constraint("PointOnObject", 1, 3, -2))
sketch11.addConstraint(Sketcher.Constraint("Radius", 4, Q("136.99651 mm")))
sketch11.addConstraint(Sketcher.Constraint("DistanceX", 0, 2, -1, 1, Q("0.7805999 in")))
sketch11.addConstraint(Sketcher.Constraint("Radius", 1, Q("22.936817 mm")))
sketch11.addConstraint(Sketcher.Constraint("Radius", 2, Q("248.910076 mm")))
sketch11.addConstraint(Sketcher.Constraint("Radius", 5, Q("22.888226 mm")))
sketch11.addConstraint(Sketcher.Constraint("DistanceY", 4, 3, 2, 3, Q("4.3972999 in")))
sketch11.addConstraint(Sketcher.Constraint("DistanceX", -1, 1, 2, 3, Q("227.706699 mm")))
sketch11.addConstraint(Sketcher.Constraint("DistanceX", 5, 3, -1, 1, Q("25.255869 mm")))
sketch11.addConstraint(Sketcher.Constraint("DistanceY", 1, 3, 2, 1, Q("37.631409 mm")))
sketch11.addConstraint(Sketcher.Constraint("DistanceY", 2, 1, 3, 2, Q("27.547841 mm")))
pad2 = doc.addObject("PartDesign::Pad", "Pad001")
body.addObject(pad2)
pad2.Profile = sketch11
pad2.Length = Q("0.126 in")
pad2.Reversed = True
doc.recompute()

fillet = doc.addObject("PartDesign::Fillet", "Fillet")
body.addObject(fillet)
fillet.Base = (pad2, edges_at(pad2, [(44.301, 126.194, 1.6), (-35.838, 88.116, 1.6)]))
fillet.Radius = Q("0.2 in")

# Sketch on XY plane
sketch12 = doc.addObject("Sketcher::SketchObject", "Sketch011")
body.addObject(sketch12)
sketch12.AttachmentSupport = (doc.XY_Plane, [""])
sketch12.MapMode = "FlatFace"
sketch12.addGeometry(Part.LineSegment(Vector(21.7, 67.4, 0), Vector(34.4, 67.4, 0)), False)
sketch12.addGeometry(Part.ArcOfCircle(Part.Circle(Vector(34.4, 64.2, 0), Vector(0, 0, 1), 3.2), math.radians(-90), math.radians(90)), False)
sketch12.addGeometry(Part.LineSegment(Vector(34.4, 61, 0), Vector(21.7, 61, 0)), False)
sketch12.addGeometry(Part.ArcOfCircle(Part.Circle(Vector(21.7, 64.2, 0), Vector(0, 0, 1), 3.2), math.radians(90), math.radians(270)), False)
sketch12.addConstraint(Sketcher.Constraint("Tangent", 0, 2, 1, 2))
sketch12.addConstraint(Sketcher.Constraint("Tangent", 1, 1, 2, 1))
sketch12.addConstraint(Sketcher.Constraint("Tangent", 2, 2, 3, 2))
sketch12.addConstraint(Sketcher.Constraint("Tangent", 3, 1, 0, 1))
sketch12.addConstraint(Sketcher.Constraint("Horizontal", 0))
sketch12.addConstraint(Sketcher.Constraint("Horizontal", 2))
sketch12.addConstraint(Sketcher.Constraint("DistanceX", 0, 1, 0, 2, Q("0.5 in")))
sketch12.addConstraint(Sketcher.Constraint("Radius", 1, Q("0.125 in")))
sketch12.addConstraint(Sketcher.Constraint("DistanceX", -1, 1, 1, 3, Q("1.3525 in")))
sketch12.addConstraint(Sketcher.Constraint("DistanceY", -1, 1, 1, 3, Q("2.5268 in")))
pocket10 = doc.addObject("PartDesign::Pocket", "Pocket009")
body.addObject(pocket10)
pocket10.Profile = sketch12
pocket10.Length = Q("0.126 in")
pocket10.Reversed = True

# Sketch on XY plane
sketch13 = doc.addObject("Sketcher::SketchObject", "Sketch012")
body.addObject(sketch13)
sketch13.AttachmentSupport = (doc.XY_Plane, [""])
sketch13.MapMode = "FlatFace"
add_polygon(sketch13, [(-39, 94), (-18, 61), (-71, 66)])  # lines 0-2
sketch13.addConstraint(Sketcher.Constraint("DistanceX", 1, 2, 0, 2, Q("52.560331 mm")))
sketch13.addConstraint(Sketcher.Constraint("DistanceX", 2, 2, 0, 2, Q("21.423151 mm")))
sketch13.addConstraint(Sketcher.Constraint("DistanceY", 1, 2, 2, 2, Q("27.185309 mm")))
sketch13.addConstraint(Sketcher.Constraint("Distance", 0, Q("39.375226 mm")))
sketch13.addConstraint(Sketcher.Constraint("DistanceX", 0, 2, -1, 1, Q("17.974883 mm")))
sketch13.addConstraint(Sketcher.Constraint("DistanceY", -1, 1, 0, 2, Q("60.568227 mm")))
pocket11 = doc.addObject("PartDesign::Pocket", "Pocket010")
body.addObject(pocket11)
pocket11.Profile = sketch13
pocket11.Length = Q("0.126 in")
pocket11.Reversed = True
doc.recompute()

fillet2 = doc.addObject("PartDesign::Fillet", "Fillet001")
body.addObject(fillet2)
fillet2.Base = (pocket11, edges_at(pocket11, [(-48.023, 63.914, 1.6)]))
fillet2.Radius = Q("0.2 in")

doc.recompute()
